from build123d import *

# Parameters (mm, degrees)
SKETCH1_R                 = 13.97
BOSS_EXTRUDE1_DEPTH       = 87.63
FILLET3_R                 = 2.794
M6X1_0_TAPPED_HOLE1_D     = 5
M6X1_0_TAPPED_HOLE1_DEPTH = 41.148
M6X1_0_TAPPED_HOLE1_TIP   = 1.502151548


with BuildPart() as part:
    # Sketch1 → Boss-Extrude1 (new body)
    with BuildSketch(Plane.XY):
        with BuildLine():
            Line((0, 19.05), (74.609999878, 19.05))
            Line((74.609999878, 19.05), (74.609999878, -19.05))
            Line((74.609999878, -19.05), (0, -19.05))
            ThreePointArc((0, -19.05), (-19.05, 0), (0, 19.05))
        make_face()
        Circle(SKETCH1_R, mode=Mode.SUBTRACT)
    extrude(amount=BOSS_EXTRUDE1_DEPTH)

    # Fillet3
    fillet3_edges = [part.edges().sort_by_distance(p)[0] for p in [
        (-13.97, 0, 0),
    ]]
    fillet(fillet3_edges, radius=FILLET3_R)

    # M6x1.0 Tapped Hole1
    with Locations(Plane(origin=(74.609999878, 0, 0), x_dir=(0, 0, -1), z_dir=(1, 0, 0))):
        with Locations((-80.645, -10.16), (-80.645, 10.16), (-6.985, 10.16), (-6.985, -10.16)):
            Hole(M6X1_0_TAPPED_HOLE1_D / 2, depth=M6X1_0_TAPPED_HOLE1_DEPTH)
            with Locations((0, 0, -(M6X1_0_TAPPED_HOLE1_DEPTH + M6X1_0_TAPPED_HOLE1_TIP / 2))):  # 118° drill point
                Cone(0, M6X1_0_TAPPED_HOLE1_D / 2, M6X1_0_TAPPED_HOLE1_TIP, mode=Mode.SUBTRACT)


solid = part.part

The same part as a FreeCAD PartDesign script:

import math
import FreeCAD as App
import Part
import Sketcher

V = App.Vector
Q = App.Units.Quantity


def edges_at(feature, points):
    """Names of the edges that pass closest to the given points."""
    edges = feature.Shape.Edges
    near = lambda p: min(range(len(edges)), key=lambda i: edges[i].distToShape(Part.Vertex(*p))[0])
    return sorted({f"Edge{near(p) + 1}" for p in points})

doc = App.newDocument("Part")
body = doc.addObject("PartDesign::Body", "Body")

# Sketch on XY plane
sketch1 = doc.addObject("Sketcher::SketchObject", "Sketch")
body.addObject(sketch1)
sketch1.AttachmentSupport = (doc.XY_Plane, [""])
sketch1.MapMode = "FlatFace"
sketch1.addGeometry([
    Part.LineSegment(V(74.61, 19.05, 0), V(0, 19.05, 0)),  # 0
    Part.ArcOfCircle(Part.Circle(V(0, 0, 0), V(0, 0, 1), 19.05), math.radians(90), math.radians(270)),  # 1
    Part.LineSegment(V(0, -19.05, 0), V(74.61, -19.05, 0)),  # 2
    Part.LineSegment(V(74.61, -19.05, 0), V(74.61, 19.05, 0)),  # 3
    Part.Circle(V(0, 0, 0), V(0, 0, 1), 13.97),  # 4
], False)
sketch1.addConstraint([
    Sketcher.Constraint("Tangent", 0, 2, 1, 1),
    Sketcher.Constraint("Tangent", 1, 2, 2, 1),
    Sketcher.Constraint("Coincident", 2, 2, 3, 1),
    Sketcher.Constraint("Coincident", 3, 2, 0, 1),
    Sketcher.Constraint("Horizontal", 0),
    Sketcher.Constraint("Horizontal", 2),
    Sketcher.Constraint("Vertical", 3),
    Sketcher.Constraint("Coincident", 1, 3, -1, 1),
    Sketcher.Constraint("Coincident", 4, 3, -1, 1),
    Sketcher.Constraint("Diameter", 4, Q("1.1 in")),
    Sketcher.Constraint("Radius", 1, Q("0.75 in")),
    Sketcher.Constraint("DistanceX", 0, 2, 0, 1, 74.61),
])
pad1 = doc.addObject("PartDesign::Pad", "Pad")
body.addObject(pad1)
pad1.Profile = sketch1
pad1.Length = Q("3.45 in")
doc.recompute()

fillet = doc.addObject("PartDesign::Fillet", "Fillet")
body.addObject(fillet)
fillet.Base = (pad1, edges_at(pad1, [(-13.97, 0, 0)]))
fillet.Radius = Q("0.11 in")

# Sketch on YZ plane
sketch2 = doc.addObject("Sketcher::SketchObject", "Sketch001")
body.addObject(sketch2)
sketch2.AttachmentSupport = (doc.YZ_Plane, [""])
sketch2.MapMode = "FlatFace"
sketch2.AttachmentOffset = App.Placement(V(0, 0, 74.61), App.Rotation())
sketch2.addGeometry([
    Part.Circle(V(-10.16, 80.645, 0), V(0, 0, 1), 2.5),
    Part.Circle(V(10.16, 80.645, 0), V(0, 0, 1), 2.5),
    Part.Circle(V(10.16, 6.985, 0), V(0, 0, 1), 2.5),
    Part.Circle(V(-10.16, 6.985, 0), V(0, 0, 1), 2.5),
], False)
sketch2.addConstraint([
    Sketcher.Constraint("Equal", 0, 1),
    Sketcher.Constraint("Equal", 1, 2),
    Sketcher.Constraint("Equal", 2, 3),
    Sketcher.Constraint("Symmetric", 0, 3, 1, 3, -2),
    Sketcher.Constraint("Symmetric", 2, 3, 3, 3, -2),
    Sketcher.Constraint("Vertical", 1, 3, 2, 3),
    Sketcher.Constraint("DistanceX", 0, 3, -1, 1, Q("0.4 in")),
    Sketcher.Constraint("DistanceY", 2, 3, 1, 3, Q("2.9 in")),
    Sketcher.Constraint("Diameter", 0, 5.0),
    Sketcher.Constraint("DistanceY", -1, 1, 0, 3, Q("3.175 in")),
])
doc.recompute()
hole = doc.addObject("PartDesign::Hole", "Hole")
body.addObject(hole)
hole.Profile = sketch2
hole.ThreadType = "None"
hole.Diameter = 5
hole.DepthType = "Dimension"
hole.Depth = Q("1.62 in")
hole.DrillPoint = "Angled"
hole.DrillPointAngle = 118

doc.recompute()
